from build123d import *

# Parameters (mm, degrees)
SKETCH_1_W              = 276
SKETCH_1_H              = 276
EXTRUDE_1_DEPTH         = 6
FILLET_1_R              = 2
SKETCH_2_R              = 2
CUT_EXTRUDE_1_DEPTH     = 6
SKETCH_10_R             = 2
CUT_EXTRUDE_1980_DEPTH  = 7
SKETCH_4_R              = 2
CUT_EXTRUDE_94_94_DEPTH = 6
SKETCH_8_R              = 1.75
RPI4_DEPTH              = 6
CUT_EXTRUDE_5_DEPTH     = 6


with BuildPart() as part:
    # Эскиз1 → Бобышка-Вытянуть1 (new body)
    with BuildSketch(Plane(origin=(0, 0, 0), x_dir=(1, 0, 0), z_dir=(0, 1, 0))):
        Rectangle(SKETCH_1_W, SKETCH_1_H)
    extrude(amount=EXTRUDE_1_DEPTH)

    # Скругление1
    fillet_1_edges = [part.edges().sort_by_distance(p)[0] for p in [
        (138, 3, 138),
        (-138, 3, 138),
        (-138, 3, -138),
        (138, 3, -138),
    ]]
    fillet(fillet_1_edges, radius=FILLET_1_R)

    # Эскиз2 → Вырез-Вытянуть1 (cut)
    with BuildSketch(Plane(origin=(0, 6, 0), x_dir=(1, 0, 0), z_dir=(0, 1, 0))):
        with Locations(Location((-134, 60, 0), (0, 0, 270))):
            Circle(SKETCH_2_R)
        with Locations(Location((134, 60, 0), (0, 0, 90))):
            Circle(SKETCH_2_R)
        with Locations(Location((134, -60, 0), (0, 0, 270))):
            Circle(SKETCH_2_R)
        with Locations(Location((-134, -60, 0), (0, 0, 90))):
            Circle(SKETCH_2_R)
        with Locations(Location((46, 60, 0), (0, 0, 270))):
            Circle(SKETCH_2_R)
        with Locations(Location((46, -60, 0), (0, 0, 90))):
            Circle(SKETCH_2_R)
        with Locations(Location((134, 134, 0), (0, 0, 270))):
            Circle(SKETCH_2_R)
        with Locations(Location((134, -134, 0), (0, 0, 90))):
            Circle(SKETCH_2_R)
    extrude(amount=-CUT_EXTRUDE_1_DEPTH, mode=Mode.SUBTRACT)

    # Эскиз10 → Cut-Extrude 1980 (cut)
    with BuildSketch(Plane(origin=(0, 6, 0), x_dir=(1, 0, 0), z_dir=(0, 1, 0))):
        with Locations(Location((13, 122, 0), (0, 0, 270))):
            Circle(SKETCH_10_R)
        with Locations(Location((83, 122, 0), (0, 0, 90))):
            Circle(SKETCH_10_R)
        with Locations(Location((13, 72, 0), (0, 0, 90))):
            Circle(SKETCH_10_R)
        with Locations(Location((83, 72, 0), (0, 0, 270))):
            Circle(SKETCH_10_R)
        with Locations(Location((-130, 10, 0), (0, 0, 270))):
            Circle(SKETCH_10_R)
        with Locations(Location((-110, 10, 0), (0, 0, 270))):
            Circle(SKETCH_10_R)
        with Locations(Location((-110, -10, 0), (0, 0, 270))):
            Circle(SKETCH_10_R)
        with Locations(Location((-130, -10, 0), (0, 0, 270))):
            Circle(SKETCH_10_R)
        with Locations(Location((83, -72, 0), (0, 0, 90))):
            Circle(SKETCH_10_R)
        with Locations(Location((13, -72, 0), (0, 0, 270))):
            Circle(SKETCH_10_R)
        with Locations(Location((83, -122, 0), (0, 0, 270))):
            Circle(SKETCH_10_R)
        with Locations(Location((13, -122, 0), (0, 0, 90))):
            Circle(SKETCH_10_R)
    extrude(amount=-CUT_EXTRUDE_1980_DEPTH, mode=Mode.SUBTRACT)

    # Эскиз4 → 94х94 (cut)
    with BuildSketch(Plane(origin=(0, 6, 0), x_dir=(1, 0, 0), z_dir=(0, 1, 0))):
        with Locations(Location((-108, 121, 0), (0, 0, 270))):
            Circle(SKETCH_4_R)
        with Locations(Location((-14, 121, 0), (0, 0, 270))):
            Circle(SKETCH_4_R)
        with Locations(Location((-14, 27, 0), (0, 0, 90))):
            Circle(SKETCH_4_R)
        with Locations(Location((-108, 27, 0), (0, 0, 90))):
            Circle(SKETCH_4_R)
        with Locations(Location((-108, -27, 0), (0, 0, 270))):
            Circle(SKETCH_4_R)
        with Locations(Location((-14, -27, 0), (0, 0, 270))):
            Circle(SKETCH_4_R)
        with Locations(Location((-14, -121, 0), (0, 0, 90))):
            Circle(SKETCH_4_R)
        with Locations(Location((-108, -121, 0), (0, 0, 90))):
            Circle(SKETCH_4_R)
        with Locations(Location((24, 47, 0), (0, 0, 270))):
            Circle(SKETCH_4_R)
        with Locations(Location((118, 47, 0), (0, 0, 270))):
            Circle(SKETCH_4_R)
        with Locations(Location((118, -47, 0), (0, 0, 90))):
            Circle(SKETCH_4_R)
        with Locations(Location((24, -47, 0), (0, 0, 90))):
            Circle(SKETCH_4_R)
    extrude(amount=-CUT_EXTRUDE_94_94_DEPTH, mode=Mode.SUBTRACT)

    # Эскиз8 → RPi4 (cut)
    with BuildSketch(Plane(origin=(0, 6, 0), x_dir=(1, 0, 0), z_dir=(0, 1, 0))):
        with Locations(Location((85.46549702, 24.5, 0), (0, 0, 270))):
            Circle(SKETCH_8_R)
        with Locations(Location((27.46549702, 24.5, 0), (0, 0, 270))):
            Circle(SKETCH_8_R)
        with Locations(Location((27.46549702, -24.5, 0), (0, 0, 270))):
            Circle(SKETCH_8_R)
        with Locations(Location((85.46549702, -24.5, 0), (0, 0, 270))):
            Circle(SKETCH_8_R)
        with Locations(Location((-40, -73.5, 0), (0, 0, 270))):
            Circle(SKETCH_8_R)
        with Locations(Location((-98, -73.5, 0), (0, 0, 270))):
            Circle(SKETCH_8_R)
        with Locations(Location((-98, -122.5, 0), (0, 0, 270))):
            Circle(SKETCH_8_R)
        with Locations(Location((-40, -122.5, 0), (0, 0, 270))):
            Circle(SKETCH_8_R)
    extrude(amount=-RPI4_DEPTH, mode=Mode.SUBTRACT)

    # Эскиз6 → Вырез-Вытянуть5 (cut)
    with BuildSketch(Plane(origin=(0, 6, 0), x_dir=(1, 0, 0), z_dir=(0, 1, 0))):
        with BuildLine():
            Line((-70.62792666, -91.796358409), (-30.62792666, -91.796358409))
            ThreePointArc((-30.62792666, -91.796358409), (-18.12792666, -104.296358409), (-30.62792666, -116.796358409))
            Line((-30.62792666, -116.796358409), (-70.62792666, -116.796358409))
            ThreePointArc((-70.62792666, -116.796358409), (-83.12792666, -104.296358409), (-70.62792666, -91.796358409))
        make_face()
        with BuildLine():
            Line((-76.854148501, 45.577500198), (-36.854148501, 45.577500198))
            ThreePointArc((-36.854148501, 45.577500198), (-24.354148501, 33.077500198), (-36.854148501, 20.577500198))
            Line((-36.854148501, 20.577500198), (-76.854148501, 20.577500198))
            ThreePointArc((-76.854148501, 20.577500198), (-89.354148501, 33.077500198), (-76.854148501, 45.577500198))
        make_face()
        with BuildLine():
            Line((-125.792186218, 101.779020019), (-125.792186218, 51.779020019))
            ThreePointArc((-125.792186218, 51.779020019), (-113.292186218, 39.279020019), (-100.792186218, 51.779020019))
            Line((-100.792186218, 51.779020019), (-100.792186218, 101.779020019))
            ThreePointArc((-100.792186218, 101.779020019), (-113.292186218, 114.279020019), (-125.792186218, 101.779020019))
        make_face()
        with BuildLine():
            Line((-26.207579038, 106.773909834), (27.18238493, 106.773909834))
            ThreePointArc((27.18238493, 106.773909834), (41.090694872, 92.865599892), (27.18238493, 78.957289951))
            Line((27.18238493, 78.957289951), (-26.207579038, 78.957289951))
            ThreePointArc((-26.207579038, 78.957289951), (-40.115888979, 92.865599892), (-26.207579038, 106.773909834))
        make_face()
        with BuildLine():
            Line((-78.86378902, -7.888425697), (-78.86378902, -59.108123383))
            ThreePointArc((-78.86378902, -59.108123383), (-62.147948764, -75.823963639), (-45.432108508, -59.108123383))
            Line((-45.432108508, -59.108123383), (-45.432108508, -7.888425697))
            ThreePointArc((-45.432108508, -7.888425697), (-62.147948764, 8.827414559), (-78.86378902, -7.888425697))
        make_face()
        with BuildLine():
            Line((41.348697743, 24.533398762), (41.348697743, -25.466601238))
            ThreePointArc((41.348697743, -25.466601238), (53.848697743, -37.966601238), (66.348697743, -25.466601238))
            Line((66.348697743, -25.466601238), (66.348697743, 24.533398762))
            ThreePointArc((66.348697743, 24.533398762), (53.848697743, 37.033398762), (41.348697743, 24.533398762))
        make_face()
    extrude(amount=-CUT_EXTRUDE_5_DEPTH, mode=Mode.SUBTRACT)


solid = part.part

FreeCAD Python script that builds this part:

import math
import FreeCAD as App
import Part
import Sketcher


def edges_at(feature, points):
    """Names of the edges that pass closest to the given points."""
    edges = feature.Shape.Edges
    near = lambda p: min(range(len(edges)), key=lambda i: edges[i].distToShape(Part.Vertex(*p))[0])
    return sorted({f"Edge{near(p) + 1}" for p in points})

doc = App.newDocument("Part")
params = doc.addObject("Spreadsheet::Sheet", "Params")
for row, (alias, value) in enumerate([
    ("sketch1_width", "276 mm"),
    ("pad1_length", "6 mm"),
    ("fillet_radius", "2 mm"),
    ("sketch2_diameter", "4 mm"),
    ("pocket1_length", "6 mm"),
    ("sketch3_diameter", "4 mm"),
    ("pocket2_length", "7 mm"),
    ("sketch4_diameter", "4 mm"),
    ("pocket3_length", "6 mm"),
    ("sketch5_diameter", "3.5 mm"),
    ("pocket4_length", "6 mm"),
    ("sketch6_radius", "12.5 mm"),
    ("sketch6_width", "40 mm"),
    ("sketch6_height", "50 mm"),
    ("pocket5_length", "6 mm"),
], start=1):
    params.set(f"A{row}", alias)
    params.set(f"B{row}", "=" + value)
    params.setAlias(f"B{row}", alias)

body = doc.addObject("PartDesign::Body", "Body")

sketch1 = body.newObject("Sketcher::SketchObject", "Sketch")
sketch1.AttachmentSupport = (doc.getObject("XZ_Plane"), [""])
sketch1.MapMode = "FlatFace"
sketch1.addGeometry([
    Part.LineSegment(App.Vector(-138, -138, 0), App.Vector(-138, 138, 0)),
    Part.LineSegment(App.Vector(-138, 138, 0), App.Vector(138, 138, 0)),
    Part.LineSegment(App.Vector(138, 138, 0), App.Vector(138, -138, 0)),
    Part.LineSegment(App.Vector(138, -138, 0), App.Vector(-138, -138, 0)),
], False)
sketch1.addConstraint([
    Sketcher.Constraint("Coincident", 0, 2, 1, 1),
    Sketcher.Constraint("Coincident", 1, 2, 2, 1),
    Sketcher.Constraint("Coincident", 2, 2, 3, 1),
    Sketcher.Constraint("Coincident", 3, 2, 0, 1),
    Sketcher.Constraint("Vertical", 0),
    Sketcher.Constraint("Horizontal", 1),
    Sketcher.Constraint("Vertical", 2),
    Sketcher.Constraint("Horizontal", 3),
    Sketcher.Constraint("Symmetric", 0, 2, 2, 2, -1, 1),
    Sketcher.Constraint("Equal", 3, 0),
    Sketcher.Constraint("DistanceX", 1, 1, 1, 2, 276.0),
])
sketch1.setExpression("Constraints[10]", "Params.sketch1_width")
pad1 = body.newObject("PartDesign::Pad", "Pad")
pad1.Profile = sketch1
pad1.setExpression("Length", "Params.pad1_length")
pad1.Reversed = True
doc.recompute()

fillet = body.newObject("PartDesign::Fillet", "Fillet")
fillet.Base = (pad1, edges_at(pad1, [
    (138, 3, 138),
    (-138, 3, 138),
    (-138, 3, -138),
    (138, 3, -138),
]))
fillet.setExpression("Radius", "Params.fillet_radius")

sketch2 = body.newObject("Sketcher::SketchObject", "Sketch001")
sketch2.AttachmentSupport = (doc.getObject("XZ_Plane"), [""])
sketch2.MapMode = "FlatFace"
sketch2.AttachmentOffset = App.Placement(App.Vector(0, 0, -6), App.Rotation())
sketch2.addGeometry([
    Part.Circle(App.Vector(-134, -60, 0), App.Vector(0, 0, 1), 2),
    Part.Circle(App.Vector(134, -60, 0), App.Vector(0, 0, 1), 2),
    Part.Circle(App.Vector(134, 60, 0), App.Vector(0, 0, 1), 2),
    Part.Circle(App.Vector(-134, 60, 0), App.Vector(0, 0, 1), 2),
    Part.Circle(App.Vector(46, -60, 0), App.Vector(0, 0, 1), 2),
    Part.Circle(App.Vector(46, 60, 0), App.Vector(0, 0, 1), 2),
    Part.Circle(App.Vector(134, -134, 0), App.Vector(0, 0, 1), 2),
    Part.Circle(App.Vector(134, 134, 0), App.Vector(0, 0, 1), 2),
], False)
sketch2.addConstraint([
    Sketcher.Constraint("Equal", 0, 1),
    Sketcher.Constraint("Equal", 1, 2),
    Sketcher.Constraint("Equal", 2, 3),
    Sketcher.Constraint("Equal", 3, 4),
    Sketcher.Constraint("Equal", 4, 5),
    Sketcher.Constraint("Equal", 5, 6),
    Sketcher.Constraint("Equal", 6, 7),
    Sketcher.Constraint("Symmetric", 0, 3, 2, 3, -1, 1),
    Sketcher.Constraint("Symmetric", 1, 3, 3, 3, -1, 1),
    Sketcher.Constraint("Symmetric", 0, 3, 1, 3, -2),
    Sketcher.Constraint("Symmetric", 4, 3, 5, 3, -1),
    Sketcher.Constraint("Symmetric", 6, 3, 7, 3, -1),
    Sketcher.Constraint("Horizontal", 1, 3, 4, 3),
    Sketcher.Constraint("Vertical", 2, 3, 6, 3),
    Sketcher.Constraint("Diameter", 0, 4.0),
    Sketcher.Constraint("DistanceX", 0, 3, -1, 1, 134.0),
    Sketcher.Constraint("DistanceY", 0, 3, -1, 1, 60.0),
    Sketcher.Constraint("DistanceX", -1, 1, 4, 3, 46.0),
    Sketcher.Constraint("DistanceY", 6, 3, -1, 1, 134.0),
])
sketch2.setExpression("Constraints[14]", "Params.sketch2_diameter")
pocket1 = body.newObject("PartDesign::Pocket", "Pocket")
pocket1.Profile = sketch2
pocket1.setExpression("Length", "Params.pocket1_length")
pocket1.Reversed = True

sketch3 = body.newObject("Sketcher::SketchObject", "Sketch002")
sketch3.AttachmentSupport = (doc.getObject("XZ_Plane"), [""])
sketch3.MapMode = "FlatFace"
sketch3.AttachmentOffset = App.Placement(App.Vector(0, 0, -6), App.Rotation())
sketch3.addGeometry([
    Part.Circle(App.Vector(13, -122, 0), App.Vector(0, 0, 1), 2),
    Part.Circle(App.Vector(83, -122, 0), App.Vector(0, 0, 1), 2),
    Part.Circle(App.Vector(13, -72, 0), App.Vector(0, 0, 1), 2),
    Part.Circle(App.Vector(83, -72, 0), App.Vector(0, 0, 1), 2),
    Part.Circle(App.Vector(-130, -10, 0), App.Vector(0, 0, 1), 2),
    Part.Circle(App.Vector(-110, -10, 0), App.Vector(0, 0, 1), 2),
    Part.Circle(App.Vector(-110, 10, 0), App.Vector(0, 0, 1), 2),
    Part.Circle(App.Vector(-130, 10, 0), App.Vector(0, 0, 1), 2),
    Part.Circle(App.Vector(83, 72, 0), App.Vector(0, 0, 1), 2),
    Part.Circle(App.Vector(13, 72, 0), App.Vector(0, 0, 1), 2),
    Part.Circle(App.Vector(83, 122, 0), App.Vector(0, 0, 1), 2),
    Part.Circle(App.Vector(13, 122, 0), App.Vector(0, 0, 1), 2),
], False)
sketch3.addConstraint([
    Sketcher.Constraint("Equal", 0, 1),
    Sketcher.Constraint("Equal", 1, 2),
    Sketcher.Constraint("Equal", 2, 3),
    Sketcher.Constraint("Equal", 3, 4),
    Sketcher.Constraint("Equal", 4, 5),
    Sketcher.Constraint("Equal", 5, 6),
    Sketcher.Constraint("Equal", 6, 7),
    Sketcher.Constraint("Equal", 7, 8),
    Sketcher.Constraint("Equal", 8, 9),
    Sketcher.Constraint("Equal", 9, 10),
    Sketcher.Constraint("Equal", 10, 11),
    Sketcher.Constraint("Symmetric", 5, 3, 6, 3, -1),
    Sketcher.Constraint("Symmetric", 4, 3, 7, 3, -1),
    Sketcher.Constraint("Symmetric", 3, 3, 8, 3, -1),
    Sketcher.Constraint("Symmetric", 2, 3, 9, 3, -1),
    Sketcher.Constraint("Symmetric", 1, 3, 10, 3, -1),
    Sketcher.Constraint("Symmetric", 0, 3, 11, 3, -1),
    Sketcher.Constraint("Horizontal", 0, 3, 1, 3),
    Sketcher.Constraint("Horizontal", 2, 3, 3, 3),
    Sketcher.Constraint("Horizontal", 4, 3, 5, 3),
    Sketcher.Constraint("Vertical", 0, 3, 2, 3),
    Sketcher.Constraint("Vertical", 1, 3, 3, 3),
    Sketcher.Constraint("Diameter", 0, 4.0),
    Sketcher.Constraint("DistanceX", -1, 1, 0, 3, 13.0),
    Sketcher.Constraint("DistanceY", 0, 3, -1, 1, 122.0),
    Sketcher.Constraint("DistanceX", -1, 1, 1, 3, 83.0),
    Sketcher.Constraint("DistanceY", 2, 3, -1, 1, 72.0),
    Sketcher.Constraint("DistanceX", 4, 3, -1, 1, 130.0),
    Sketcher.Constraint("DistanceY", 4, 3, -1, 1, 10.0),
    Sketcher.Constraint("DistanceX", 5, 3, -1, 1, 110.0),
])
sketch3.setExpression("Constraints[22]", "Params.sketch3_diameter")
pocket2 = body.newObject("PartDesign::Pocket", "Pocket001")
pocket2.Profile = sketch3
pocket2.setExpression("Length", "Params.pocket2_length")
pocket2.Reversed = True

sketch4 = body.newObject("Sketcher::SketchObject", "Sketch003")
sketch4.AttachmentSupport = (doc.getObject("XZ_Plane"), [""])
sketch4.MapMode = "FlatFace"
sketch4.AttachmentOffset = App.Placement(App.Vector(0, 0, -6), App.Rotation())
sketch4.addGeometry([
    Part.Circle(App.Vector(-108, -121, 0), App.Vector(0, 0, 1), 2),
    Part.Circle(App.Vector(-14, -121, 0), App.Vector(0, 0, 1), 2),
    Part.Circle(App.Vector(-14, -27, 0), App.Vector(0, 0, 1), 2),
    Part.Circle(App.Vector(-108, -27, 0), App.Vector(0, 0, 1), 2),
    Part.Circle(App.Vector(-108, 27, 0), App.Vector(0, 0, 1), 2),
    Part.Circle(App.Vector(-14, 27, 0), App.Vector(0, 0, 1), 2),
    Part.Circle(App.Vector(-14, 121, 0), App.Vector(0, 0, 1), 2),
    Part.Circle(App.Vector(-108, 121, 0), App.Vector(0, 0, 1), 2),
    Part.Circle(App.Vector(24, -47, 0), App.Vector(0, 0, 1), 2),
    Part.Circle(App.Vector(118, -47, 0), App.Vector(0, 0, 1), 2),
    Part.Circle(App.Vector(118, 47, 0), App.Vector(0, 0, 1), 2),
    Part.Circle(App.Vector(24, 47, 0), App.Vector(0, 0, 1), 2),
], False)
sketch4.addConstraint([
    Sketcher.Constraint("Equal", 0, 1),
    Sketcher.Constraint("Equal", 1, 2),
    Sketcher.Constraint("Equal", 2, 3),
    Sketcher.Constraint("Equal", 3, 4),
    Sketcher.Constraint("Equal", 4, 5),
    Sketcher.Constraint("Equal", 5, 6),
    Sketcher.Constraint("Equal", 6, 7),
    Sketcher.Constraint("Equal", 7, 8),
    Sketcher.Constraint("Equal", 8, 9),
    Sketcher.Constraint("Equal", 9, 10),
    Sketcher.Constraint("Equal", 10, 11),
    Sketcher.Constraint("Symmetric", 3, 3, 4, 3, -1),
    Sketcher.Constraint("Symmetric", 2, 3, 5, 3, -1),
    Sketcher.Constraint("Symmetric", 1, 3, 6, 3, -1),
    Sketcher.Constraint("Symmetric", 0, 3, 7, 3, -1),
    Sketcher.Constraint("Symmetric", 9, 3, 10, 3, -1),
    Sketcher.Constraint("Symmetric", 8, 3, 11, 3, -1),
    Sketcher.Constraint("Horizontal", 0, 3, 1, 3),
    Sketcher.Constraint("Horizontal", 2, 3, 3, 3),
    Sketcher.Constraint("Horizontal", 8, 3, 9, 3),
    Sketcher.Constraint("Vertical", 1, 3, 2, 3),
    Sketcher.Constraint("Vertical", 0, 3, 3, 3),
    Sketcher.Constraint("Diameter", 0, 4.0),
    Sketcher.Constraint("DistanceX", 0, 3, -1, 1, 108.0),
    Sketcher.Constraint("DistanceY", 0, 3, -1, 1, 121.0),
    Sketcher.Constraint("DistanceX", 1, 3, -1, 1, 14.0),
    Sketcher.Constraint("DistanceY", 2, 3, -1, 1, 27.0),
    Sketcher.Constraint("DistanceX", -1, 1, 8, 3, 24.0),
    Sketcher.Constraint("DistanceY", 8, 3, -1, 1, 47.0),
    Sketcher.Constraint("DistanceX", -1, 1, 9, 3, 118.0),
])
sketch4.setExpression("Constraints[22]", "Params.sketch4_diameter")
pocket3 = body.newObject("PartDesign::Pocket", "Pocket002")
pocket3.Profile = sketch4
pocket3.setExpression("Length", "Params.pocket3_length")
pocket3.Reversed = True

sketch5 = body.newObject("Sketcher::SketchObject", "Sketch004")
sketch5.AttachmentSupport = (doc.getObject("XZ_Plane"), [""])
sketch5.MapMode = "FlatFace"
sketch5.AttachmentOffset = App.Placement(App.Vector(0, 0, -6), App.Rotation())
sketch5.addGeometry([
    Part.Circle(App.Vector(85.5, -24.5, 0), App.Vector(0, 0, 1), 1.8),
    Part.Circle(App.Vector(27.5, -24.5, 0), App.Vector(0, 0, 1), 1.8),
    Part.Circle(App.Vector(27.5, 24.5, 0), App.Vector(0, 0, 1), 1.8),
    Part.Circle(App.Vector(85.5, 24.5, 0), App.Vector(0, 0, 1), 1.8),
    Part.Circle(App.Vector(-40, 73.5, 0), App.Vector(0, 0, 1), 1.8),
    Part.Circle(App.Vector(-98, 73.5, 0), App.Vector(0, 0, 1), 1.8),
    Part.Circle(App.Vector(-98, 122.5, 0), App.Vector(0, 0, 1), 1.8),
    Part.Circle(App.Vector(-40, 122.5, 0), App.Vector(0, 0, 1), 1.8),
], False)
sketch5.addConstraint([
    Sketcher.Constraint("Equal", 0, 1),
    Sketcher.Constraint("Equal", 1, 2),
    Sketcher.Constraint("Equal", 2, 3),
    Sketcher.Constraint("Equal", 3, 4),
    Sketcher.Constraint("Equal", 4, 5),
    Sketcher.Constraint("Equal", 5, 6),
    Sketcher.Constraint("Equal", 6, 7),
    Sketcher.Constraint("Symmetric", 1, 3, 2, 3, -1),
    Sketcher.Constraint("Symmetric", 0, 3, 3, 3, -1),
    Sketcher.Constraint("Horizontal", 0, 3, 1, 3),
    Sketcher.Constraint("Horizontal", 4, 3, 5, 3),
    Sketcher.Constraint("Horizontal", 6, 3, 7, 3),
    Sketcher.Constraint("Vertical", 5, 3, 6, 3),
    Sketcher.Constraint("Vertical", 4, 3, 7, 3),
    Sketcher.Constraint("Diameter", 0, 3.5),
    Sketcher.Constraint("DistanceX", 4, 3, -1, 1, 40.0),
    Sketcher.Constraint("DistanceX", 5, 3, -1, 1, 98.0),
    Sketcher.Constraint("DistanceX", 1, 3, 0, 3, 58.0),
    Sketcher.Constraint("DistanceY", 1, 3, 2, 3, 49.0),
    Sketcher.Constraint("DistanceY", 2, 3, 4, 3, 49.0),
    Sketcher.Constraint("DistanceY", 5, 3, 6, 3, 49.0),
    Sketcher.Constraint("DistanceX", -1, 1, 0, 3, 85.465497),
])
sketch5.setExpression("Constraints[14]", "Params.sketch5_diameter")
pocket4 = body.newObject("PartDesign::Pocket", "Pocket003")
pocket4.Profile = sketch5
pocket4.setExpression("Length", "Params.pocket4_length")
pocket4.Reversed = True

sketch6 = body.newObject("Sketcher::SketchObject", "Sketch005")
sketch6.AttachmentSupport = (doc.getObject("XZ_Plane"), [""])
sketch6.MapMode = "FlatFace"
sketch6.AttachmentOffset = App.Placement(App.Vector(0, 0, -6), App.Rotation())
sketch6.addGeometry([
    Part.LineSegment(App.Vector(-31, 92, 0), App.Vector(-71, 92, 0)),
    Part.ArcOfCircle(Part.Circle(App.Vector(-71, 104, 0), App.Vector(0, 0, 1), 12), math.radians(90), math.radians(270)),
    Part.LineSegment(App.Vector(-71, 117, 0), App.Vector(-31, 117, 0)),
    Part.ArcOfCircle(Part.Circle(App.Vector(-31, 104, 0), App.Vector(0, 0, 1), 12), math.radians(-90), math.radians(90)),
    Part.LineSegment(App.Vector(-37, -46, 0), App.Vector(-77, -46, 0)),
    Part.ArcOfCircle(Part.Circle(App.Vector(-77, -33, 0), App.Vector(0, 0, 1), 12), math.radians(90), math.radians(270)),
    Part.LineSegment(App.Vector(-77, -21, 0), App.Vector(-37, -21, 0)),
    Part.ArcOfCircle(Part.Circle(App.Vector(-37, -33, 0), App.Vector(0, 0, 1), 12), math.radians(-90), math.radians(90)),
    Part.LineSegment(App.Vector(-126, -102, 0), App.Vector(-126, -52, 0)),
    Part.ArcOfCircle(Part.Circle(App.Vector(-113, -52, 0), App.Vector(0, 0, 1), 12), math.radians(0), math.radians(180)),
    Part.LineSegment(App.Vector(-101, -52, 0), App.Vector(-101, -102, 0)),
    Part.ArcOfCircle(Part.Circle(App.Vector(-113, -102, 0), App.Vector(0, 0, 1), 12), math.radians(180), math.radians(360)),
    Part.LineSegment(App.Vector(27, -107, 0), App.Vector(-26, -107, 0)),
    Part.ArcOfCircle(Part.Circle(App.Vector(-26, -93, 0), App.Vector(0, 0, 1), 14), math.radians(90), math.radians(270)),
    Part.LineSegment(App.Vector(-26, -79, 0), App.Vector(27, -79, 0)),
    Part.ArcOfCircle(Part.Circle(App.Vector(27, -93, 0), App.Vector(0, 0, 1), 14), math.radians(-90), math.radians(90)),
    Part.LineSegment(App.Vector(-79, 8, 0), App.Vector(-79, 59, 0)),
    Part.ArcOfCircle(Part.Circle(App.Vector(-62, 59, 0), App.Vector(0, 0, 1), 17), math.radians(0), math.radians(180)),
    Part.LineSegment(App.Vector(-45, 59, 0), App.Vector(-45, 8, 0)),
    Part.ArcOfCircle(Part.Circle(App.Vector(-62, 8, 0), App.Vector(0, 0, 1), 17), math.radians(180), math.radians(360)),
    Part.LineSegment(App.Vector(41, -25, 0), App.Vector(41, 25, 0)),
    Part.ArcOfCircle(Part.Circle(App.Vector(54, 25, 0), App.Vector(0, 0, 1), 12), math.radians(0), math.radians(180)),
    Part.LineSegment(App.Vector(66, 25, 0), App.Vector(66, -25, 0)),
    Part.ArcOfCircle(Part.Circle(App.Vector(54, -25, 0), App.Vector(0, 0, 1), 12), math.radians(180), math.radians(360)),
], False)
sketch6.addConstraint([
    Sketcher.Constraint("Tangent", 0, 2, 1, 2),
    Sketcher.Constraint("Tangent", 1, 1, 2, 1),
    Sketcher.Constraint("Tangent", 2, 2, 3, 2),
    Sketcher.Constraint("Tangent", 3, 1, 0, 1),
    Sketcher.Constraint("Tangent", 4, 2, 5, 2),
    Sketcher.Constraint("Tangent", 5, 1, 6, 1),
    Sketcher.Constraint("Tangent", 6, 2, 7, 2),
    Sketcher.Constraint("Tangent", 7, 1, 4, 1),
    Sketcher.Constraint("Tangent", 8, 2, 9, 2),
    Sketcher.Constraint("Tangent", 9, 1, 10, 1),
    Sketcher.Constraint("Tangent", 10, 2, 11, 2),
    Sketcher.Constraint("Tangent", 11, 1, 8, 1),
    Sketcher.Constraint("Tangent", 12, 2, 13, 2),
    Sketcher.Constraint("Tangent", 13, 1, 14, 1),
    Sketcher.Constraint("Tangent", 14, 2, 15, 2),
    Sketcher.Constraint("Tangent", 15, 1, 12, 1),
    Sketcher.Constraint("Tangent", 16, 2, 17, 2),
    Sketcher.Constraint("Tangent", 17, 1, 18, 1),
    Sketcher.Constraint("Tangent", 18, 2, 19, 2),
    Sketcher.Constraint("Tangent", 19, 1, 16, 1),
    Sketcher.Constraint("Tangent", 20, 2, 21, 2),
    Sketcher.Constraint("Tangent", 21, 1, 22, 1),
    Sketcher.Constraint("Tangent", 22, 2, 23, 2),
    Sketcher.Constraint("Tangent", 23, 1, 20, 1),
    Sketcher.Constraint("Horizontal", 0),
    Sketcher.Constraint("Horizontal", 2),
    Sketcher.Constraint("Horizontal", 4),
    Sketcher.Constraint("Horizontal", 6),
    Sketcher.Constraint("Vertical", 8),
    Sketcher.Constraint("Vertical", 10),
    Sketcher.Constraint("Horizontal", 12),
    Sketcher.Constraint("Horizontal", 14),
    Sketcher.Constraint("Vertical", 16),
    Sketcher.Constraint("Vertical", 18),
    Sketcher.Constraint("Vertical", 20),
    Sketcher.Constraint("Vertical", 22),
    Sketcher.Constraint("Equal", 3, 5),
    Sketcher.Constraint("Equal", 7, 9),
    Sketcher.Constraint("Equal", 11, 21),
    Sketcher.Constraint("Equal", 2, 4),
    Sketcher.Constraint("Equal", 10, 20),
    Sketcher.Constraint("Radius", 1, 12.5),
    Sketcher.Constraint("DistanceX", 0, 2, 0, 1, 40.0),
    Sketcher.Constraint("DistanceY", 8, 1, 8, 2, 50.0),
    Sketcher.Constraint("Radius", 13, 13.90831),
    Sketcher.Constraint("Radius", 17, 16.71584),
    Sketcher.Constraint("DistanceY", 5, 3, -1, 1, 33.0775),
    Sketcher.Constraint("DistanceY", 13, 3, -1, 1, 92.8656),
    Sketcher.Constraint("DistanceY", -1, 1, 21, 3, 25.466601),
    Sketcher.Constraint("DistanceX", 5, 3, 17, 3, 14.7062),
    Sketcher.Constraint("DistanceX", 12, 2, 12, 1, 53.389964),
    Sketcher.Constraint("DistanceY", 16, 1, 16, 2, 51.219698),
    Sketcher.Constraint("DistanceY", -1, 1, 1, 3, 104.296358),
    Sketcher.Constraint("DistanceX", 5, 3, -1, 1, 76.854149),
    Sketcher.Constraint("DistanceY", 9, 3, -1, 1, 51.77902),
    Sketcher.Constraint("DistanceX", 13, 3, -1, 1, 26.207579),
    Sketcher.Constraint("DistanceX", 5, 3, 1, 3, 6.226222),
    Sketcher.Constraint("DistanceX", 9, 3, 1, 3, 42.66426),
    Sketcher.Constraint("DistanceY", -1, 1, 17, 3, 59.108123),
    Sketcher.Constraint("DistanceX", -1, 1, 21, 3, 53.848698),
])
sketch6.setExpression("Constraints[41]", "Params.sketch6_radius")
sketch6.setExpression("Constraints[42]", "Params.sketch6_width")
sketch6.setExpression("Constraints[43]", "Params.sketch6_height")
pocket5 = body.newObject("PartDesign::Pocket", "Pocket004")
pocket5.Profile = sketch6
pocket5.setExpression("Length", "Params.pocket5_length")
pocket5.Reversed = True

doc.recompute()
